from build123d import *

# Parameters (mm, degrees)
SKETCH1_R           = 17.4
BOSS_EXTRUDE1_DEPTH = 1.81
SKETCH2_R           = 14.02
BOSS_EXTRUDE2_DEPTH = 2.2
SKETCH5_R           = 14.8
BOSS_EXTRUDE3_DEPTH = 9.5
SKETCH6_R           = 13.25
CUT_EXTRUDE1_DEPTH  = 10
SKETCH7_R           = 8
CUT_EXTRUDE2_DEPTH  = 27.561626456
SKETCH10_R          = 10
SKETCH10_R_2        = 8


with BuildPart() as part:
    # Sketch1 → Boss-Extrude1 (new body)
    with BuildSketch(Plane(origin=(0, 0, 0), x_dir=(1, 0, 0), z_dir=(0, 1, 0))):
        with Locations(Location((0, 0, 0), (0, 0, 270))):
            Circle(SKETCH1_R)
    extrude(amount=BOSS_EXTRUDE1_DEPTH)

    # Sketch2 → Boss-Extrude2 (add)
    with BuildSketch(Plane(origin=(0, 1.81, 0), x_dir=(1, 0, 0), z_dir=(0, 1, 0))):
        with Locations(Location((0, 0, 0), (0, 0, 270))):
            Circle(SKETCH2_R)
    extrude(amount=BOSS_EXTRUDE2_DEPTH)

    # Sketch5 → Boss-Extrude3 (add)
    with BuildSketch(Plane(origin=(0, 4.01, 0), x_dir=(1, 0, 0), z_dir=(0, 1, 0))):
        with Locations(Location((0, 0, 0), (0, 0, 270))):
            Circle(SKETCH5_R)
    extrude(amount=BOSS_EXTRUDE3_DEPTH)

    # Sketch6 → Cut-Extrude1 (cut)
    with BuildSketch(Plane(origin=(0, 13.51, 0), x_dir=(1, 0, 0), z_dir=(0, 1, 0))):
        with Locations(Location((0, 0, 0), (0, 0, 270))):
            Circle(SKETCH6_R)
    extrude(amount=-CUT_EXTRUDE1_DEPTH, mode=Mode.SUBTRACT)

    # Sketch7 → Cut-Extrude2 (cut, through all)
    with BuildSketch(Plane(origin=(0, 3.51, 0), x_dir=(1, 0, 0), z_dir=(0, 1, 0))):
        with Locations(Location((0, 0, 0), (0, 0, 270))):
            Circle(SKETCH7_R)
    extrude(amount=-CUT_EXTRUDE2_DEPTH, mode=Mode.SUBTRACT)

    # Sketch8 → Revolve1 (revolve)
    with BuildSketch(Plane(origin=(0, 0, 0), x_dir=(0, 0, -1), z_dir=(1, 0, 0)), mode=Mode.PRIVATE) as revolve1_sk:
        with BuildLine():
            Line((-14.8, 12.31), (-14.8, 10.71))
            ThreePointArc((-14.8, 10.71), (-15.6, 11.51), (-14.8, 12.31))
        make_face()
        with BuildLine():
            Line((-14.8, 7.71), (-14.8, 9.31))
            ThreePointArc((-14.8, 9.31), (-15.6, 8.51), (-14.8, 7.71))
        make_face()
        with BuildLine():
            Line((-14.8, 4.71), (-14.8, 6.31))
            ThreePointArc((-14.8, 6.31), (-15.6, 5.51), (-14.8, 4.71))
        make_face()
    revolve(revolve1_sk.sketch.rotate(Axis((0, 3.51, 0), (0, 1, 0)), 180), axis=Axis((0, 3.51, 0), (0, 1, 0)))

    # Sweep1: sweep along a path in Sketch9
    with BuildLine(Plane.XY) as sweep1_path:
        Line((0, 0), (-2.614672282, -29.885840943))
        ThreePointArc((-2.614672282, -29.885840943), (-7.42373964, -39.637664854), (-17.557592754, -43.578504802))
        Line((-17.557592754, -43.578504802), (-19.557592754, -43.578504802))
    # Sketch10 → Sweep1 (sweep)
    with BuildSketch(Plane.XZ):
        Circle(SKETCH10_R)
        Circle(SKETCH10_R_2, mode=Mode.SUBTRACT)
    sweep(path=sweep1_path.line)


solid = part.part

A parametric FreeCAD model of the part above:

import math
import FreeCAD as App
import Part
import Sketcher
from FreeCAD import Vector
Q = App.Units.Quantity

doc = App.newDocument("Part")
body = doc.addObject("PartDesign::Body", "Body")

# Sketch on XZ plane
sketch1 = doc.addObject("Sketcher::SketchObject", "Sketch")
body.addObject(sketch1)
sketch1.AttachmentSupport = (doc.XZ_Plane, [""])
sketch1.MapMode = "FlatFace"
sketch1.addGeometry(Part.Circle(Vector(0, 0, 0), Vector(0, 0, 1), 17), False)
sketch1.addConstraint(Sketcher.Constraint("Coincident", 0, 3, -1, 1))
sketch1.addConstraint(Sketcher.Constraint("Diameter", 0, Q("34.8 mm")))
pad1 = doc.addObject("PartDesign::Pad", "Pad")
body.addObject(pad1)
pad1.Profile = sketch1
pad1.Length = 1.81
pad1.Reversed = True

# Sketch on XZ plane
sketch2 = doc.addObject("Sketcher::SketchObject", "Sketch001")
body.addObject(sketch2)
sketch2.AttachmentSupport = (doc.XZ_Plane, [""])
sketch2.MapMode = "FlatFace"
sketch2.AttachmentOffset = App.Placement(Vector(0, 0, -1.81), App.Rotation())
sketch2.addGeometry(Part.Circle(Vector(0, 0, 0), Vector(0, 0, 1), 14), False)
sketch2.addConstraint(Sketcher.Constraint("Coincident", 0, 3, -1, 1))
sketch2.addConstraint(Sketcher.Constraint("Diameter", 0, Q("28.04 mm")))
pad2 = doc.addObject("PartDesign::Pad", "Pad001")
body.addObject(pad2)
pad2.Profile = sketch2
pad2.Length = 2.2
pad2.Reversed = True

# Sketch on XZ plane
sketch3 = doc.addObject("Sketcher::SketchObject", "Sketch002")
body.addObject(sketch3)
sketch3.AttachmentSupport = (doc.XZ_Plane, [""])
sketch3.MapMode = "FlatFace"
sketch3.AttachmentOffset = App.Placement(Vector(0, 0, -4.01), App.Rotation())
sketch3.addGeometry(Part.Circle(Vector(0, 0, 0), Vector(0, 0, 1), 15), False)
sketch3.addConstraint(Sketcher.Constraint("Coincident", 0, 3, -1, 1))
sketch3.addConstraint(Sketcher.Constraint("Diameter", 0, Q("29.6 mm")))
pad3 = doc.addObject("PartDesign::Pad", "Pad002")
body.addObject(pad3)
pad3.Profile = sketch3
pad3.Length = 9.5
pad3.Reversed = True

# Sketch on XZ plane
sketch4 = doc.addObject("Sketcher::SketchObject", "Sketch003")
body.addObject(sketch4)
sketch4.AttachmentSupport = (doc.XZ_Plane, [""])
sketch4.MapMode = "FlatFace"
sketch4.AttachmentOffset = App.Placement(Vector(0, 0, -13.51), App.Rotation())
sketch4.addGeometry(Part.Circle(Vector(0, 0, 0), Vector(0, 0, 1), 13), False)
sketch4.addConstraint(Sketcher.Constraint("Coincident", 0, 3, -1, 1))
sketch4.addConstraint(Sketcher.Constraint("Diameter", 0, Q("26.5 mm")))
pocket1 = doc.addObject("PartDesign::Pocket", "Pocket")
body.addObject(pocket1)
pocket1.Profile = sketch4
pocket1.Length = 10
pocket1.Reversed = True

# Sketch on XZ plane
sketch5 = doc.addObject("Sketcher::SketchObject", "Sketch004")
body.addObject(sketch5)
sketch5.AttachmentSupport = (doc.XZ_Plane, [""])
sketch5.MapMode = "FlatFace"
sketch5.AttachmentOffset = App.Placement(Vector(0, 0, -3.51), App.Rotation())
sketch5.addGeometry(Part.Circle(Vector(0, 0, 0), Vector(0, 0, 1), 8), False)
sketch5.addConstraint(Sketcher.Constraint("Coincident", 0, 3, -1, 1))
sketch5.addConstraint(Sketcher.Constraint("Diameter", 0, Q("16 mm")))
pocket2 = doc.addObject("PartDesign::Pocket", "Pocket001")
body.addObject(pocket2)
pocket2.Profile = sketch5
pocket2.Type = "ThroughAll"
pocket2.Reversed = True

# Sketch on YZ plane
sketch6 = doc.addObject("Sketcher::SketchObject", "Sketch005")
body.addObject(sketch6)
sketch6.AttachmentSupport = (doc.YZ_Plane, [""])
sketch6.MapMode = "FlatFace"
sketch6.addGeometry(Part.LineSegment(Vector(10.7, 14.8, 0), Vector(12.3, 14.8, 0)), False)
sketch6.addGeometry(Part.ArcOfCircle(Part.Circle(Vector(11.5, 14.8, 0), Vector(0, 0, 1), 0.8), math.radians(0), math.radians(180)), False)
sketch6.addGeometry(Part.LineSegment(Vector(7.7, 14.8, 0), Vector(9.3, 14.8, 0)), False)
sketch6.addGeometry(Part.ArcOfCircle(Part.Circle(Vector(8.5, 14.8, 0), Vector(0, 0, 1), 0.8), math.radians(0), math.radians(180)), False)
sketch6.addGeometry(Part.LineSegment(Vector(4.7, 14.8, 0), Vector(6.3, 14.8, 0)), False)
sketch6.addGeometry(Part.ArcOfCircle(Part.Circle(Vector(5.5, 14.8, 0), Vector(0, 0, 1), 0.8), math.radians(0), math.radians(180)), False)
sketch6.addConstraint(Sketcher.Constraint("Coincident", 0, 1, 1, 2))
sketch6.addConstraint(Sketcher.Constraint("Coincident", 1, 1, 0, 2))
sketch6.addConstraint(Sketcher.Constraint("Coincident", 2, 1, 3, 2))
sketch6.addConstraint(Sketcher.Constraint("Coincident", 3, 1, 2, 2))
sketch6.addConstraint(Sketcher.Constraint("Coincident", 4, 1, 5, 2))
sketch6.addConstraint(Sketcher.Constraint("Coincident", 5, 1, 4, 2))
sketch6.addConstraint(Sketcher.Constraint("Horizontal", 0))
sketch6.addConstraint(Sketcher.Constraint("Horizontal", 2))
sketch6.addConstraint(Sketcher.Constraint("Horizontal", 4))
sketch6.addConstraint(Sketcher.Constraint("Equal", 1, 3))
sketch6.addConstraint(Sketcher.Constraint("Equal", 3, 5))
sketch6.addConstraint(Sketcher.Constraint("Horizontal", 1, 3, 3, 3))
sketch6.addConstraint(Sketcher.Constraint("Horizontal", 3, 3, 5, 3))
sketch6.addConstraint(Sketcher.Constraint("Horizontal", 5, 3, 0, 1))
sketch6.addConstraint(Sketcher.Constraint("Horizontal", 1, 1, 2, 1))
sketch6.addConstraint(Sketcher.Constraint("Horizontal", 3, 1, 4, 1))
sketch6.addConstraint(Sketcher.Constraint("Radius", 1, Q("0.8 mm")))
sketch6.addConstraint(Sketcher.Constraint("DistanceX", 3, 3, 1, 3, Q("3 mm")))
sketch6.addConstraint(Sketcher.Constraint("DistanceX", 5, 3, 3, 3, Q("3 mm")))
sketch6.addConstraint(Sketcher.Constraint("DistanceY", -1, 1, 1, 3, Q("14.8 mm")))
sketch6.addConstraint(Sketcher.Constraint("DistanceX", -1, 1, 1, 3, Q("11.51 mm")))
revolution = doc.addObject("PartDesign::Revolution", "Revolution")
body.addObject(revolution)
revolution.Profile = sketch6
revolution.ReferenceAxis = (sketch6, ["H_Axis"])
revolution.Angle = 360

# Sketch on XZ plane
sketch7 = doc.addObject("Sketcher::SketchObject", "Sketch006")
body.addObject(sketch7)
sketch7.AttachmentSupport = (doc.XZ_Plane, [""])
sketch7.MapMode = "FlatFace"
sketch7.addGeometry(Part.Circle(Vector(0, 0, 0), Vector(0, 0, 1), 10), False)
sketch7.addGeometry(Part.Circle(Vector(0, 0, 0), Vector(0, 0, 1), 8), False)
sketch7.addConstraint(Sketcher.Constraint("Coincident", 0, 3, -1, 1))
sketch7.addConstraint(Sketcher.Constraint("Coincident", 1, 3, -1, 1))
sketch7.addConstraint(Sketcher.Constraint("Diameter", 0, Q("20 mm")))
sketch7.addConstraint(Sketcher.Constraint("Diameter", 1, Q("16 mm")))

# Sketch on XY plane
sketch8 = doc.addObject("Sketcher::SketchObject", "Sketch007")
body.addObject(sketch8)
sketch8.AttachmentSupport = (doc.XY_Plane, [""])
sketch8.MapMode = "FlatFace"
sketch8.addGeometry(Part.LineSegment(Vector(0, 0, 0), Vector(-2.6, -29.9, 0)), False)
sketch8.addGeometry(Part.ArcOfCircle(Part.Circle(Vector(-17.6, -28.6, 0), Vector(0, 0, 1), 15), math.radians(-90), math.radians(-5)), False)
sketch8.addGeometry(Part.LineSegment(Vector(-17.6, -43.6, 0), Vector(-19.6, -43.6, 0)), False)
sketch8.addConstraint(Sketcher.Constraint("Tangent", 0, 2, 1, 2))
sketch8.addConstraint(Sketcher.Constraint("Tangent", 1, 1, 2, 1))
sketch8.addConstraint(Sketcher.Constraint("Horizontal", 2))
sketch8.addConstraint(Sketcher.Constraint("Coincident", 0, 1, -1, 1))
sketch8.addConstraint(Sketcher.Constraint("Radius", 1, Q("15 mm")))
sketch8.addConstraint(Sketcher.Constraint("DistanceX", 2, 2, 2, 1, Q("2 mm")))
sketch8.addConstraint(Sketcher.Constraint("Angle", 0, Q("-95 deg")))
sketch8.addConstraint(Sketcher.Constraint("Distance", 0, Q("30 mm")))
doc.recompute()

additivepipe = doc.addObject("PartDesign::AdditivePipe", "AdditivePipe")
body.addObject(additivepipe)
additivepipe.Profile = sketch7
additivepipe.Spine = (sketch8, ["Edge1", "Edge2", "Edge3"])

doc.recompute()
